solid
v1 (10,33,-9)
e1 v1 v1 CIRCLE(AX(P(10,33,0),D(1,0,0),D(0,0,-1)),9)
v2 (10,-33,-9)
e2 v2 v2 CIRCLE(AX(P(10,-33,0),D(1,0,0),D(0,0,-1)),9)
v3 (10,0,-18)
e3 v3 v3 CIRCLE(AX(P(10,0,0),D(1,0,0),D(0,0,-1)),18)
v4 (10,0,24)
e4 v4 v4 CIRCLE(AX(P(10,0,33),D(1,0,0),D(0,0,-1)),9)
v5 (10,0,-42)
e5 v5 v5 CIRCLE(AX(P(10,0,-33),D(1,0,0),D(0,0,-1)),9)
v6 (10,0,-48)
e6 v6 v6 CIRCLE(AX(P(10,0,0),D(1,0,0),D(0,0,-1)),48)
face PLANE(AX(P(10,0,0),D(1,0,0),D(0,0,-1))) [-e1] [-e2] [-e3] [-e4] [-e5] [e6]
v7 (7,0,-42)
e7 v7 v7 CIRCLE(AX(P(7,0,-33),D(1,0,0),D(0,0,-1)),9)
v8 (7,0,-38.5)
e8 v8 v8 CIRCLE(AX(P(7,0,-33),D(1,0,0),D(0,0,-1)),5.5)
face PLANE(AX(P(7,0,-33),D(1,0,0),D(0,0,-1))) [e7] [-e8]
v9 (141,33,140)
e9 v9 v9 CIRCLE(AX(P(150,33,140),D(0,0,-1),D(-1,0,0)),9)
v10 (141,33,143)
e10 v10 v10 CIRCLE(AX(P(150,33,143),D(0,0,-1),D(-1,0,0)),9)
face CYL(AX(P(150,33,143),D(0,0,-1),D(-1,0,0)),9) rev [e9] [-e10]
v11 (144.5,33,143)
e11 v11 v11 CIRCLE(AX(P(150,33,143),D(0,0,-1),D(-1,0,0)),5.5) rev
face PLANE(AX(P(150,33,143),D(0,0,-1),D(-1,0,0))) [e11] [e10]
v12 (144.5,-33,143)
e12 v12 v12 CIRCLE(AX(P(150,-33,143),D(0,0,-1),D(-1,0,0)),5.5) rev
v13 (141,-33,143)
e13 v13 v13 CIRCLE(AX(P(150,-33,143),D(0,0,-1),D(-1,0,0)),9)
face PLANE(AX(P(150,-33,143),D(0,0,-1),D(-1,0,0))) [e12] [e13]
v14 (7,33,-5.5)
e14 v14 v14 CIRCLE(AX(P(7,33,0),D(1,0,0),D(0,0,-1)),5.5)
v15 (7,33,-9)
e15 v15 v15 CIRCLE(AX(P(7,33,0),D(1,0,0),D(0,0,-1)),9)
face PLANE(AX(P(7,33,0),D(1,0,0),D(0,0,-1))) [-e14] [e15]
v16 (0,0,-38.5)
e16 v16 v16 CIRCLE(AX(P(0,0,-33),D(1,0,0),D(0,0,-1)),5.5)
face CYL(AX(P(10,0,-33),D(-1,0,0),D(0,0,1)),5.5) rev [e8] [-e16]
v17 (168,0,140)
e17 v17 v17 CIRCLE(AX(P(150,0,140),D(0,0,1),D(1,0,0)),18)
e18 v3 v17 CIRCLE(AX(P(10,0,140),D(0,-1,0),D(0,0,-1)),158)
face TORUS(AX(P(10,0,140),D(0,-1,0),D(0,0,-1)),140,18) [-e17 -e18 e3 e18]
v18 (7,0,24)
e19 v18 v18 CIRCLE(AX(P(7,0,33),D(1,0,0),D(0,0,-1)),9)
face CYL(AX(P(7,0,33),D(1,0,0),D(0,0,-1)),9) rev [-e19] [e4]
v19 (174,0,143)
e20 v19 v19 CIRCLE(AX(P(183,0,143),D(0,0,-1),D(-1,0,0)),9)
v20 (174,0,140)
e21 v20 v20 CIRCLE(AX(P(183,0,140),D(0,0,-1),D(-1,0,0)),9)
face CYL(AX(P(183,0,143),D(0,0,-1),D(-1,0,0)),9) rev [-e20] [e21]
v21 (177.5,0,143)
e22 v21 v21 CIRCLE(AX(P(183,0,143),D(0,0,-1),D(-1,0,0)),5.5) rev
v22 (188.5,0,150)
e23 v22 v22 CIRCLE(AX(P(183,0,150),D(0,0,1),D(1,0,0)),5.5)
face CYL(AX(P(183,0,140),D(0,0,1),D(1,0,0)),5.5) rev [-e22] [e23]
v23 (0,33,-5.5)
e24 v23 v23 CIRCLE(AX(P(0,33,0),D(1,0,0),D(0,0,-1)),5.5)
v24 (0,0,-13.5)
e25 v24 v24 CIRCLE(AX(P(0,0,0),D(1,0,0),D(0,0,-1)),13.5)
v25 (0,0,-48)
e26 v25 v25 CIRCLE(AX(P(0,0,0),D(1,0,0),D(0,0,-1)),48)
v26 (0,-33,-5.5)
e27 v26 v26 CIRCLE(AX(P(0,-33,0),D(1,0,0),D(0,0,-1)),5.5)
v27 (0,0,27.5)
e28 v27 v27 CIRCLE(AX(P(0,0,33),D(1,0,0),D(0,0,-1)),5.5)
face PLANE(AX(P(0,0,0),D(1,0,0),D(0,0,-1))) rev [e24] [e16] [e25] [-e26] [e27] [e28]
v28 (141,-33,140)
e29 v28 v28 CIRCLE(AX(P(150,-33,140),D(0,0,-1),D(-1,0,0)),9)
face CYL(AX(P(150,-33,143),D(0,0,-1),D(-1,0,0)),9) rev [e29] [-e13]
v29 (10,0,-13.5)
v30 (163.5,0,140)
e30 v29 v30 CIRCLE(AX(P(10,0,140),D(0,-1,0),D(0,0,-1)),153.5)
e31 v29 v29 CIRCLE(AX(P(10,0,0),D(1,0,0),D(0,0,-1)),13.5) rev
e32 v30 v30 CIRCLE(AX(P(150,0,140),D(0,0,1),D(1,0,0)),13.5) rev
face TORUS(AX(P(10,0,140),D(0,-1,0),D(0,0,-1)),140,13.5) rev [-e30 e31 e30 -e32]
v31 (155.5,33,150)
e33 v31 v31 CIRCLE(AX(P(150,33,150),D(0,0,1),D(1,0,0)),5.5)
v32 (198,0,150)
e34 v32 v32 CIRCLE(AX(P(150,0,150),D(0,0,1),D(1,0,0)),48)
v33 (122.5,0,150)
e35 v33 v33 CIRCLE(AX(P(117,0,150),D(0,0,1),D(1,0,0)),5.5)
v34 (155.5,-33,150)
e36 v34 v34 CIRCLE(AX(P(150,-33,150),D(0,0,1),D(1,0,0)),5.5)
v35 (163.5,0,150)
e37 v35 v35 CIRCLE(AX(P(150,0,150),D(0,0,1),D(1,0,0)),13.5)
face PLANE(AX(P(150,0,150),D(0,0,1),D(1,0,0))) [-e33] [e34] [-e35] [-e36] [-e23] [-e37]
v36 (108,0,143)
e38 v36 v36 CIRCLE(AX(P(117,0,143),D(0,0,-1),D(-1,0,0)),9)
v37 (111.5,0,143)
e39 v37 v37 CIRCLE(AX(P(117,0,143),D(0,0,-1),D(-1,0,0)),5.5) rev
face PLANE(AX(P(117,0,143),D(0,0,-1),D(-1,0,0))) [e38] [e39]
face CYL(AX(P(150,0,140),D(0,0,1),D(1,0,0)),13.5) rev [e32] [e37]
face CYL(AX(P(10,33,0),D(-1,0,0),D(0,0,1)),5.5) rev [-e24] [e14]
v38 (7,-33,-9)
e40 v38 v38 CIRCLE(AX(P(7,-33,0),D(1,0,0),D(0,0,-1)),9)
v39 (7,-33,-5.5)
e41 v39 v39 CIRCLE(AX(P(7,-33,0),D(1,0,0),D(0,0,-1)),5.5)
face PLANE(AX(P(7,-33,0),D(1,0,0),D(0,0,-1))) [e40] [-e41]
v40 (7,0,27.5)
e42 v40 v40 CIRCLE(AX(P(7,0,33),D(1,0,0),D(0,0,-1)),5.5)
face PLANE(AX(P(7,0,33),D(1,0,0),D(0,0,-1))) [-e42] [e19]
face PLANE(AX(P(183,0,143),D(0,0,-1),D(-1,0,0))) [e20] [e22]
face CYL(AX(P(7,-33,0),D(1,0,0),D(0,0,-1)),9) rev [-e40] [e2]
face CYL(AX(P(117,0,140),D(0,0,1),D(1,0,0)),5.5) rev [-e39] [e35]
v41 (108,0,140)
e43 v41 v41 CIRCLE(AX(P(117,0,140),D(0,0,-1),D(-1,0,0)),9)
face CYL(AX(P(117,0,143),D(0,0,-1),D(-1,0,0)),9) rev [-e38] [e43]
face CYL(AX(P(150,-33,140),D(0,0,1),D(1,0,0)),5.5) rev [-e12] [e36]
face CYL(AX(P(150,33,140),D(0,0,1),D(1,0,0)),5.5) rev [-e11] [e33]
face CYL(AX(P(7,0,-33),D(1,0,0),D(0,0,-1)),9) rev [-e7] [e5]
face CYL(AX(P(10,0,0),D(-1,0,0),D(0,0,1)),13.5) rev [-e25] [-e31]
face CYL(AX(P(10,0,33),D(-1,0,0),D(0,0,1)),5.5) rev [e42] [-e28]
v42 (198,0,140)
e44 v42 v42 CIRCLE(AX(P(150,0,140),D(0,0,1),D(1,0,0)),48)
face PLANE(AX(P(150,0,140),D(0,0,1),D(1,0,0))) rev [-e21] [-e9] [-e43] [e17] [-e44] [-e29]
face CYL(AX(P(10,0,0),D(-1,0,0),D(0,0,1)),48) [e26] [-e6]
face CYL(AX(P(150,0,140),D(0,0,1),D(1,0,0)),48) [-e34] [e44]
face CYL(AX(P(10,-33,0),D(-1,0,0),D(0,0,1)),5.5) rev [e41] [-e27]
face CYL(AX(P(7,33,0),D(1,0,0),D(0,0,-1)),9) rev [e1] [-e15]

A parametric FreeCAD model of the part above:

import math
import FreeCAD as App
import Part
import Sketcher

V = App.Vector
Q = App.Units.Quantity

doc = App.newDocument("Part")
body = doc.addObject("PartDesign::Body", "Body")

# Sketch on YZ plane
sketch1 = doc.addObject("Sketcher::SketchObject", "Sketch")
body.addObject(sketch1)
sketch1.AttachmentSupport = (doc.YZ_Plane, [""])
sketch1.MapMode = "FlatFace"
sketch1.addGeometry(Part.Circle(V(0, 0, 0), V(0, 0, 1), 48), False)
sketch1.addGeometry(Part.Circle(V(-33, 0, 0), V(0, 0, 1), 6), False)
sketch1.addGeometry(Part.Circle(V(0, 33, 0), V(0, 0, 1), 6), False)
sketch1.addGeometry(Part.Circle(V(0, 0, 0), V(0, 0, 1), 14), False)
sketch1.addGeometry(Part.Circle(V(0, -33, 0), V(0, 0, 1), 6), False)
sketch1.addGeometry(Part.Circle(V(33, 0, 0), V(0, 0, 1), 6), False)
sketch1.addConstraint(Sketcher.Constraint("Coincident", 0, 3, -1, 1))
sketch1.addConstraint(Sketcher.Constraint("Coincident", 3, 3, -1, 1))
sketch1.addConstraint(Sketcher.Constraint("Equal", 1, 2))
sketch1.addConstraint(Sketcher.Constraint("Equal", 2, 4))
sketch1.addConstraint(Sketcher.Constraint("Equal", 4, 5))
sketch1.addConstraint(Sketcher.Constraint("Symmetric", 2, 3, 4, 3, -1, 1))
sketch1.addConstraint(Sketcher.Constraint("Symmetric", 1, 3, 5, 3, -1, 1))
sketch1.addConstraint(Sketcher.Constraint("PointOnObject", 1, 3, -1))
sketch1.addConstraint(Sketcher.Constraint("PointOnObject", 2, 3, -2))
sketch1.addConstraint(Sketcher.Constraint("Diameter", 0, Q("96 mm")))
sketch1.addConstraint(Sketcher.Constraint("Diameter", 1, Q("11 mm")))
sketch1.addConstraint(Sketcher.Constraint("Diameter", 3, Q("27 mm")))
sketch1.addConstraint(Sketcher.Constraint("DistanceX", 1, 3, -1, 1, Q("33 mm")))
sketch1.addConstraint(Sketcher.Constraint("DistanceY", -1, 1, 2, 3, Q("33 mm")))
pad1 = doc.addObject("PartDesign::Pad", "Pad")
body.addObject(pad1)
pad1.Profile = sketch1
pad1.Length = 10
body2 = doc.addObject("PartDesign::Body", "Body001")

# Sketch on XY plane
sketch2 = doc.addObject("Sketcher::SketchObject", "Sketch001")
body2.addObject(sketch2)
sketch2.AttachmentSupport = (doc.getObject("XY_Plane001"), [""])
sketch2.MapMode = "FlatFace"
sketch2.AttachmentOffset = App.Placement(V(0, 0, 150), App.Rotation())
sketch2.addGeometry(Part.Circle(V(150, 0, 0), V(0, 0, 1), 48), False)
sketch2.addGeometry(Part.Circle(V(150, -33, 0), V(0, 0, 1), 6), False)
sketch2.addGeometry(Part.Circle(V(117, 0, 0), V(0, 0, 1), 6), False)
sketch2.addGeometry(Part.Circle(V(150, 0, 0), V(0, 0, 1), 14), False)
sketch2.addGeometry(Part.Circle(V(183, 0, 0), V(0, 0, 1), 6), False)
sketch2.addGeometry(Part.Circle(V(150, 33, 0), V(0, 0, 1), 6), False)
sketch2.addConstraint(Sketcher.Constraint("Coincident", 3, 3, 0, 3))
sketch2.addConstraint(Sketcher.Constraint("Equal", 1, 2))
sketch2.addConstraint(Sketcher.Constraint("Equal", 2, 4))
sketch2.addConstraint(Sketcher.Constraint("Equal", 4, 5))
sketch2.addConstraint(Sketcher.Constraint("Symmetric", 1, 3, 5, 3, -1))
sketch2.addConstraint(Sketcher.Constraint("PointOnObject", 0, 3, -1))
sketch2.addConstraint(Sketcher.Constraint("PointOnObject", 2, 3, -1))
sketch2.addConstraint(Sketcher.Constraint("PointOnObject", 4, 3, -1))
sketch2.addConstraint(Sketcher.Constraint("Vertical", 0, 3, 1, 3))
sketch2.addConstraint(Sketcher.Constraint("Diameter", 0, Q("96 mm")))
sketch2.addConstraint(Sketcher.Constraint("Diameter", 1, Q("11 mm")))
sketch2.addConstraint(Sketcher.Constraint("Diameter", 3, Q("27 mm")))
sketch2.addConstraint(Sketcher.Constraint("DistanceX", -1, 1, 0, 3, Q("150 mm")))
sketch2.addConstraint(Sketcher.Constraint("DistanceY", 1, 3, -1, 1, Q("33 mm")))
sketch2.addConstraint(Sketcher.Constraint("DistanceX", -1, 1, 2, 3, Q("117 mm")))
sketch2.addConstraint(Sketcher.Constraint("DistanceX", -1, 1, 4, 3, Q("183 mm")))
pad2 = doc.addObject("PartDesign::Pad", "Pad001")
body2.addObject(pad2)
pad2.Profile = sketch2
pad2.Length = 10
pad2.Reversed = True
body.AllowCompound = True
doc.recompute()

boolean = doc.addObject("PartDesign::Boolean", "Boolean")
body.addObject(boolean)
boolean.Type = "Fuse"
boolean.addObjects([body2])

# Sketch on YZ plane
sketch3 = doc.addObject("Sketcher::SketchObject", "Sketch002")
body.addObject(sketch3)
sketch3.AttachmentSupport = (doc.YZ_Plane, [""])
sketch3.MapMode = "FlatFace"
sketch3.AttachmentOffset = App.Placement(V(0, 0, 10), App.Rotation())
sketch3.addGeometry(Part.Circle(V(0, 0, 0), V(0, 0, 1), 18), False)
sketch3.addGeometry(Part.Circle(V(0, 0, 0), V(0, 0, 1), 14), False)
sketch3.addConstraint(Sketcher.Constraint("Coincident", 0, 3, -1, 1))
sketch3.addConstraint(Sketcher.Constraint("Coincident", 1, 3, -1, 1))
sketch3.addConstraint(Sketcher.Constraint("Diameter", 0, Q("36 mm")))
sketch3.addConstraint(Sketcher.Constraint("Diameter", 1, Q("27 mm")))

# Sketch on XZ plane
sketch4 = doc.addObject("Sketcher::SketchObject", "Sketch003")
body.addObject(sketch4)
sketch4.AttachmentSupport = (doc.XZ_Plane, [""])
sketch4.MapMode = "FlatFace"
sketch4.addGeometry(Part.ArcOfCircle(Part.Circle(V(10, 140, 0), V(0, 0, 1), 140), math.radians(-90), math.radians(0)), False)
sketch4.addConstraint(Sketcher.Constraint("PointOnObject", 0, 1, -1))
sketch4.addConstraint(Sketcher.Constraint("Radius", 0, Q("140 mm")))
sketch4.addConstraint(Sketcher.Constraint("DistanceX", -1, 1, 0, 3, Q("10 mm")))
sketch4.addConstraint(Sketcher.Constraint("DistanceX", -1, 1, 0, 1, Q("10 mm")))
sketch4.addConstraint(Sketcher.Constraint("DistanceY", -1, 1, 0, 2, Q("140 mm")))
doc.recompute()

additivepipe = doc.addObject("PartDesign::AdditivePipe", "AdditivePipe")
body.addObject(additivepipe)
additivepipe.Profile = sketch3
additivepipe.Spine = (sketch4, ["Edge1"])

# Sketch on YZ plane
sketch5 = doc.addObject("Sketcher::SketchObject", "Sketch004")
body.addObject(sketch5)
sketch5.AttachmentSupport = (doc.YZ_Plane, [""])
sketch5.MapMode = "FlatFace"
sketch5.AttachmentOffset = App.Placement(V(0, 0, 10), App.Rotation())
sketch5.addGeometry(Part.Circle(V(33, 0, 0), V(0, 0, 1), 9), False)
sketch5.addGeometry(Part.Circle(V(0, -33, 0), V(0, 0, 1), 9), False)
sketch5.addGeometry(Part.Circle(V(-33, 0, 0), V(0, 0, 1), 9), False)
sketch5.addGeometry(Part.Circle(V(0, 33, 0), V(0, 0, 1), 9), False)
sketch5.addConstraint(Sketcher.Constraint("Equal", 0, 1))
sketch5.addConstraint(Sketcher.Constraint("Equal", 1, 2))
sketch5.addConstraint(Sketcher.Constraint("Equal", 2, 3))
sketch5.addConstraint(Sketcher.Constraint("Symmetric", 0, 3, 2, 3, -1, 1))
sketch5.addConstraint(Sketcher.Constraint("Symmetric", 1, 3, 3, 3, -1, 1))
sketch5.addConstraint(Sketcher.Constraint("PointOnObject", 0, 3, -1))
sketch5.addConstraint(Sketcher.Constraint("PointOnObject", 1, 3, -2))
sketch5.addConstraint(Sketcher.Constraint("Diameter", 0, Q("18 mm")))
sketch5.addConstraint(Sketcher.Constraint("DistanceX", -1, 1, 0, 3, Q("33 mm")))
sketch5.addConstraint(Sketcher.Constraint("DistanceY", 1, 3, -1, 1, Q("33 mm")))
pocket1 = doc.addObject("PartDesign::Pocket", "Pocket")
body.addObject(pocket1)
pocket1.Profile = sketch5
pocket1.Length = 3

# Sketch on XY plane
sketch6 = doc.addObject("Sketcher::SketchObject", "Sketch005")
body.addObject(sketch6)
sketch6.AttachmentSupport = (doc.XY_Plane, [""])
sketch6.MapMode = "FlatFace"
sketch6.AttachmentOffset = App.Placement(V(0, 0, 140), App.Rotation())
sketch6.addGeometry(Part.Circle(V(150, 33, 0), V(0, 0, 1), 9), False)
sketch6.addGeometry(Part.Circle(V(117, 0, 0), V(0, 0, 1), 9), False)
sketch6.addGeometry(Part.Circle(V(150, -33, 0), V(0, 0, 1), 9), False)
sketch6.addGeometry(Part.Circle(V(183, 0, 0), V(0, 0, 1), 9), False)
sketch6.addConstraint(Sketcher.Constraint("Equal", 0, 1))
sketch6.addConstraint(Sketcher.Constraint("Equal", 1, 2))
sketch6.addConstraint(Sketcher.Constraint("Equal", 2, 3))
sketch6.addConstraint(Sketcher.Constraint("Symmetric", 0, 3, 2, 3, -1))
sketch6.addConstraint(Sketcher.Constraint("PointOnObject", 1, 3, -1))
sketch6.addConstraint(Sketcher.Constraint("PointOnObject", 3, 3, -1))
sketch6.addConstraint(Sketcher.Constraint("Diameter", 0, Q("18 mm")))
sketch6.addConstraint(Sketcher.Constraint("DistanceX", -1, 1, 0, 3, Q("150 mm")))
sketch6.addConstraint(Sketcher.Constraint("DistanceY", -1, 1, 0, 3, Q("33 mm")))
sketch6.addConstraint(Sketcher.Constraint("DistanceX", -1, 1, 1, 3, Q("117 mm")))
sketch6.addConstraint(Sketcher.Constraint("DistanceX", -1, 1, 3, 3, Q("183 mm")))
pocket2 = doc.addObject("PartDesign::Pocket", "Pocket001")
body.addObject(pocket2)
pocket2.Profile = sketch6
pocket2.Length = 3
pocket2.Reversed = True

doc.recompute()
